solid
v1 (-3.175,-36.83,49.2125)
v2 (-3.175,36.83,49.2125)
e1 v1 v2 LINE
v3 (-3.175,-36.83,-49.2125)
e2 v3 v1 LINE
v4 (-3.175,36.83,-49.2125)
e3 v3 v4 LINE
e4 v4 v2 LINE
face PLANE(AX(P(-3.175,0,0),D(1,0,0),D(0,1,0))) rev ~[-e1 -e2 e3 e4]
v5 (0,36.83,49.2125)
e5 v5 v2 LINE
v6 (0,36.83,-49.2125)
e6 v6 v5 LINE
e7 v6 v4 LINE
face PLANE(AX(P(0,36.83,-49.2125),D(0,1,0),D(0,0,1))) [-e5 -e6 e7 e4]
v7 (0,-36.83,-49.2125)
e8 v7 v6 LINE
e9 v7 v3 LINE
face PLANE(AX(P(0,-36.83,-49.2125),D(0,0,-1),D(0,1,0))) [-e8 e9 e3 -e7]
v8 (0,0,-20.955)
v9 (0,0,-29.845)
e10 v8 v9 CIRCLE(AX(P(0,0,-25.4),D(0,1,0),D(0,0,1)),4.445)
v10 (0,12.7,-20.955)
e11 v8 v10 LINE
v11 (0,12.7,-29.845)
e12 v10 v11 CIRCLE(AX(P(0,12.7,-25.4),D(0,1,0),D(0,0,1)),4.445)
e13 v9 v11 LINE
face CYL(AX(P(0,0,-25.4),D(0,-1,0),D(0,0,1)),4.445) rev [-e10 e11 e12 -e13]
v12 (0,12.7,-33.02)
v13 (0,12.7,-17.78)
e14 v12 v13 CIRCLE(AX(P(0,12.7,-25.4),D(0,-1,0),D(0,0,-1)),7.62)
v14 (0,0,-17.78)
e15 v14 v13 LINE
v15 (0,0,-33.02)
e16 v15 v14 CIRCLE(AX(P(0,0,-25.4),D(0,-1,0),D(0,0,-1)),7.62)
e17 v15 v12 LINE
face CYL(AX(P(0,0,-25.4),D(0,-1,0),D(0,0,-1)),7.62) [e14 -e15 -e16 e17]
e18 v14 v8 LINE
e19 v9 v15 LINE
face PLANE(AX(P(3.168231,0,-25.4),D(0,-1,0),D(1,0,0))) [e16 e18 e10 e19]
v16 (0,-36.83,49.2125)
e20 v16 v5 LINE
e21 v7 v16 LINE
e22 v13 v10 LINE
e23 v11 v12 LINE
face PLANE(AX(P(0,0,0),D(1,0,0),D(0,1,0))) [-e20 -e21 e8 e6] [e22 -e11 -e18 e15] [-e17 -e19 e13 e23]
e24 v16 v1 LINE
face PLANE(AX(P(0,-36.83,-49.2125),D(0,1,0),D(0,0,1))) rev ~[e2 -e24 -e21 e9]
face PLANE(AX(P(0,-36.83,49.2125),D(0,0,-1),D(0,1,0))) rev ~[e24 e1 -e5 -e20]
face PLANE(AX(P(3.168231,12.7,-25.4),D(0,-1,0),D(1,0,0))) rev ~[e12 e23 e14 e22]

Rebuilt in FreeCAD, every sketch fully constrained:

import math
import FreeCAD as App
import Part
import Sketcher
Q = App.Units.Quantity

doc = App.newDocument("Part")
body = doc.addObject("PartDesign::Body", "Body")

sketch1 = body.newObject("Sketcher::SketchObject", "Sketch")
sketch1.AttachmentSupport = (doc.getObject("YZ_Plane"), [""])
sketch1.MapMode = "FlatFace"
sketch1.addGeometry(Part.LineSegment(App.Vector(-37, 49, 0), App.Vector(-37, -49, 0)), False)
sketch1.addGeometry(Part.LineSegment(App.Vector(-37, -49, 0), App.Vector(37, -49, 0)), False)
sketch1.addGeometry(Part.LineSegment(App.Vector(37, -49, 0), App.Vector(37, 49, 0)), False)
sketch1.addGeometry(Part.LineSegment(App.Vector(37, 49, 0), App.Vector(-37, 49, 0)), False)
sketch1.addConstraint(Sketcher.Constraint("Coincident", 0, 2, 1, 1))
sketch1.addConstraint(Sketcher.Constraint("Coincident", 1, 2, 2, 1))
sketch1.addConstraint(Sketcher.Constraint("Coincident", 2, 2, 3, 1))
sketch1.addConstraint(Sketcher.Constraint("Coincident", 3, 2, 0, 1))
sketch1.addConstraint(Sketcher.Constraint("Vertical", 0))
sketch1.addConstraint(Sketcher.Constraint("Horizontal", 1))
sketch1.addConstraint(Sketcher.Constraint("Vertical", 2))
sketch1.addConstraint(Sketcher.Constraint("Horizontal", 3))
sketch1.addConstraint(Sketcher.Constraint("Symmetric", 0, 2, 2, 2, -1, 1))
sketch1.addConstraint(Sketcher.Constraint("DistanceX", 1, 1, 1, 2, Q("2.9 in")))
sketch1.addConstraint(Sketcher.Constraint("DistanceY", 0, 2, 0, 1, Q("3.875 in")))
pad1 = body.newObject("PartDesign::Pad", "Pad")
pad1.Profile = sketch1
pad1.Length = Q("0.125 in")
pad1.Reversed = True

sketch2 = body.newObject("Sketcher::SketchObject", "Sketch001")
sketch2.AttachmentSupport = (doc.getObject("XZ_Plane"), [""])
sketch2.MapMode = "FlatFace"
sketch2.addGeometry(Part.LineSegment(App.Vector(0, -29.8, 0), App.Vector(0, -33, 0)), False)
sketch2.addGeometry(Part.ArcOfCircle(Part.Circle(App.Vector(0, -25.4, 0), App.Vector(0, 0, 1), 7.6), math.radians(-90), math.radians(90)), False)
sketch2.addGeometry(Part.LineSegment(App.Vector(0, -17.8, 0), App.Vector(0, -21, 0)), False)
sketch2.addGeometry(Part.ArcOfCircle(Part.Circle(App.Vector(0, -25.4, 0), App.Vector(0, 0, 1), 4.4), math.radians(-90), math.radians(90)), False)
sketch2.addConstraint(Sketcher.Constraint("Coincident", 0, 2, 1, 1))
sketch2.addConstraint(Sketcher.Constraint("Coincident", 1, 2, 2, 1))
sketch2.addConstraint(Sketcher.Constraint("Coincident", 2, 2, 3, 2))
sketch2.addConstraint(Sketcher.Constraint("Coincident", 3, 1, 0, 1))
sketch2.addConstraint(Sketcher.Constraint("Vertical", 0))
sketch2.addConstraint(Sketcher.Constraint("Vertical", 2))
sketch2.addConstraint(Sketcher.Constraint("Coincident", 3, 3, 1, 3))
sketch2.addConstraint(Sketcher.Constraint("PointOnObject", 1, 3, -2))
sketch2.addConstraint(Sketcher.Constraint("PointOnObject", 0, 2, -2))
sketch2.addConstraint(Sketcher.Constraint("PointOnObject", 1, 2, -2))
sketch2.addConstraint(Sketcher.Constraint("Radius", 1, Q("0.3 in")))
sketch2.addConstraint(Sketcher.Constraint("DistanceY", 1, 3, -1, 1, Q("1 in")))
sketch2.addConstraint(Sketcher.Constraint("Radius", 3, Q("0.175 in")))
pad2 = body.newObject("PartDesign::Pad", "Pad001")
pad2.Profile = sketch2
pad2.Length = Q("0.5 in")
pad2.Reversed = True

doc.recompute()
